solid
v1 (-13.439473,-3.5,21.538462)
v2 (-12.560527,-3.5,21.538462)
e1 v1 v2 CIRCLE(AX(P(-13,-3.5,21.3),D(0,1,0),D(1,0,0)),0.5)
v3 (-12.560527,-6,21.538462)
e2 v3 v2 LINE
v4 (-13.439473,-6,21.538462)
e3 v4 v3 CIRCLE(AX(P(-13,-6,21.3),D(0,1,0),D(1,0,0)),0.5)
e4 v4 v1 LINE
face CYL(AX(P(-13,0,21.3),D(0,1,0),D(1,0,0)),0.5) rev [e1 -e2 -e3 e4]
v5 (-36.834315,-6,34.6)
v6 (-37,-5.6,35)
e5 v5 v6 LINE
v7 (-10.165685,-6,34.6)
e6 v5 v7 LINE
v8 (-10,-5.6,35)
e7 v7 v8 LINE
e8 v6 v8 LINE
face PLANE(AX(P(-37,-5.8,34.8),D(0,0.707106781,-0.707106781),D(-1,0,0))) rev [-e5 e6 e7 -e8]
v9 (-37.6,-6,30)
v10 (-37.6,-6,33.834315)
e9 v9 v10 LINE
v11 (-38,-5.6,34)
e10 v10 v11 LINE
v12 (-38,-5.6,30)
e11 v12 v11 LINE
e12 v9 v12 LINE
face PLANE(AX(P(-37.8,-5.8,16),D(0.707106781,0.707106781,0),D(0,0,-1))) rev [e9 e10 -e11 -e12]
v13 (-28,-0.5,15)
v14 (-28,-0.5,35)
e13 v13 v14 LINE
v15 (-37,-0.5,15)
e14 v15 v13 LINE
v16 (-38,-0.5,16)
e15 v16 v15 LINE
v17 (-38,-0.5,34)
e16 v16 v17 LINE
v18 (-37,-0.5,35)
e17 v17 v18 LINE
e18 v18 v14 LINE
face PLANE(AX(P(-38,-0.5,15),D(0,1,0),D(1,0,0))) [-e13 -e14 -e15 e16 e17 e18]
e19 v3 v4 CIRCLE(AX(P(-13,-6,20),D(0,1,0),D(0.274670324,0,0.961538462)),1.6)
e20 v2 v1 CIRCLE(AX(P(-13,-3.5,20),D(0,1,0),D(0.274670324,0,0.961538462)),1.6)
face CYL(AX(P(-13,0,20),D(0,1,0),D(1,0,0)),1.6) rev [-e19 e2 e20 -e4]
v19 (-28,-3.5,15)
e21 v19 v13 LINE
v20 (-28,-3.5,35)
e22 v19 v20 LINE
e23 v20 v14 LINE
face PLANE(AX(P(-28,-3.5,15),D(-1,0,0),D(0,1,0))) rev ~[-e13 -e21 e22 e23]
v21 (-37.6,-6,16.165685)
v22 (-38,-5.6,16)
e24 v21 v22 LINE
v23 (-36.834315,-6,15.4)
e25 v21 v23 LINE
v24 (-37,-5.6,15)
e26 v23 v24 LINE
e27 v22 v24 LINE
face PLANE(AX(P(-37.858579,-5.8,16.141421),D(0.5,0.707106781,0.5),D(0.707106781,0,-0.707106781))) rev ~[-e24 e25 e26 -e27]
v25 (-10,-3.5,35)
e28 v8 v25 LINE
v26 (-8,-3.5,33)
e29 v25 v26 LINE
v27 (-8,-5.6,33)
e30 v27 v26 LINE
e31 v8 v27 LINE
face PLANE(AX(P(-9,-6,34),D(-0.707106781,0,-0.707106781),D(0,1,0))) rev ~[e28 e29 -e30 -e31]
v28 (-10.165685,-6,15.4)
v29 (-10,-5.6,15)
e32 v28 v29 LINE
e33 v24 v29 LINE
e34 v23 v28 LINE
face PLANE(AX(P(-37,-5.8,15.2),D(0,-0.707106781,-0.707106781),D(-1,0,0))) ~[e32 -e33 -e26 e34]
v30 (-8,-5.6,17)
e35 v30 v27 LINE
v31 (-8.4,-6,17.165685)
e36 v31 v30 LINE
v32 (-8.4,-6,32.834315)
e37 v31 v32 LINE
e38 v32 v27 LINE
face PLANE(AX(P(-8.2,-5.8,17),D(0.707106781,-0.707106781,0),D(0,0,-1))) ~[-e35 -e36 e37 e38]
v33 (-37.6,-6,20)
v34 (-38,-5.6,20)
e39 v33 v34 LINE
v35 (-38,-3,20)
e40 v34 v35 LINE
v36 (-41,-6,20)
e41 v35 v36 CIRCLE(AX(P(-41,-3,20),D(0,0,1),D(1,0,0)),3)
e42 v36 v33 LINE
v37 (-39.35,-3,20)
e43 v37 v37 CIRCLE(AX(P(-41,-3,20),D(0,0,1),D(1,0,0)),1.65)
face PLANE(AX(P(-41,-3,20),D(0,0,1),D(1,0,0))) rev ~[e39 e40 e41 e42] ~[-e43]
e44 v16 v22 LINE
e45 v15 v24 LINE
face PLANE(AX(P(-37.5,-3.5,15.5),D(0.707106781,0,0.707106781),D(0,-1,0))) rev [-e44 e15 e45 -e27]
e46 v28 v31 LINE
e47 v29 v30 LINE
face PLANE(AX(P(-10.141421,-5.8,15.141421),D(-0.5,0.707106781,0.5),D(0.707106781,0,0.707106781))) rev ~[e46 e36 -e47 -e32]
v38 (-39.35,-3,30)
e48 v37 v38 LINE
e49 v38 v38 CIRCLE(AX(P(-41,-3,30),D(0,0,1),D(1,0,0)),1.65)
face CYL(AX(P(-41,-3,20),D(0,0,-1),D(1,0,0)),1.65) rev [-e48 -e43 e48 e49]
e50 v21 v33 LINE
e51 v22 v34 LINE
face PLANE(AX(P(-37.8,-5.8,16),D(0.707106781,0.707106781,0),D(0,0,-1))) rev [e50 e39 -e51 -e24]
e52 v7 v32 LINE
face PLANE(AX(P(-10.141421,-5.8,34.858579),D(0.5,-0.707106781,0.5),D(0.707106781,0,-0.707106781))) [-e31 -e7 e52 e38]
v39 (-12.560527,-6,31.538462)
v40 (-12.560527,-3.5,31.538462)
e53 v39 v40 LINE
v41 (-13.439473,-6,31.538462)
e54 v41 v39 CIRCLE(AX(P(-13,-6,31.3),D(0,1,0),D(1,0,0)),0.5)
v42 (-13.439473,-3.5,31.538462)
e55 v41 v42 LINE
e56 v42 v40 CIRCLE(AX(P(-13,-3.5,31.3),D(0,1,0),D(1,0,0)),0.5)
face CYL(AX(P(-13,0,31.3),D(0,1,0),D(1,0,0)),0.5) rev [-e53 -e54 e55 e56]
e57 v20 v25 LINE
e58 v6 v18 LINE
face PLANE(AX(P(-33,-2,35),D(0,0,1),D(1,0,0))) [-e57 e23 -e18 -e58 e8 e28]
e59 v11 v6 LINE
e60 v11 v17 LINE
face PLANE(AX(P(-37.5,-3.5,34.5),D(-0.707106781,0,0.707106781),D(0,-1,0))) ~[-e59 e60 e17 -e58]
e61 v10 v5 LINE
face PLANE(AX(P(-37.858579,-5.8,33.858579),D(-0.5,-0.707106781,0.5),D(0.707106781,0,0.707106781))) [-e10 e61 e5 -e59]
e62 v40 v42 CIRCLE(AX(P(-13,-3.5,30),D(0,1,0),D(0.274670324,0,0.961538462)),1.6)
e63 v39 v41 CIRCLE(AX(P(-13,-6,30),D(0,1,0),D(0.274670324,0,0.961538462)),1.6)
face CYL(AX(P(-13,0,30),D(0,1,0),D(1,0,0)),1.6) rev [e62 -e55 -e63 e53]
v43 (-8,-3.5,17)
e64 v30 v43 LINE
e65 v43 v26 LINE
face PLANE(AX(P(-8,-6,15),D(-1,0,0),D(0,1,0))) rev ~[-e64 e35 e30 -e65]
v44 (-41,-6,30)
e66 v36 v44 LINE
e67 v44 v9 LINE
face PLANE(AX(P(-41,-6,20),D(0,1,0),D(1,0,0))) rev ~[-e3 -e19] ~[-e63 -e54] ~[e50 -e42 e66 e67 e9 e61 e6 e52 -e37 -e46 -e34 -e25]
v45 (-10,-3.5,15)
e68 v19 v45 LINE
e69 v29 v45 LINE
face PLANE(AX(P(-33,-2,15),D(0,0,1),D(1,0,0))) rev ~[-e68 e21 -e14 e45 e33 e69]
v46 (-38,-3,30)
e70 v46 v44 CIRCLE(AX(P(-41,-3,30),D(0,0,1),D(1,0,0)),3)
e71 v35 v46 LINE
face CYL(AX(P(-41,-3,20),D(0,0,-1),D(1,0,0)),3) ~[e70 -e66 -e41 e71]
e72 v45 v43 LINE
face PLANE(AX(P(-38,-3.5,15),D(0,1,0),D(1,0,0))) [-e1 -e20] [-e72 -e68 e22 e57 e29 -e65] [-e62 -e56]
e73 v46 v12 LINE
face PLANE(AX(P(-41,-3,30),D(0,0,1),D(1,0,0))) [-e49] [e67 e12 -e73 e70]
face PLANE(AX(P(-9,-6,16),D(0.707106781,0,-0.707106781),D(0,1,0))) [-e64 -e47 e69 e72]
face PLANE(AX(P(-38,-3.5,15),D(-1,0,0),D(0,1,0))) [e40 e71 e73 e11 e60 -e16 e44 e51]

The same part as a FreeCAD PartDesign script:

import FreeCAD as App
import Part
import Sketcher

V = App.Vector
Q = App.Units.Quantity


def edges_at(feature, points):
    """Names of the edges that pass closest to the given points."""
    edges = feature.Shape.Edges
    near = lambda p: min(range(len(edges)), key=lambda i: edges[i].distToShape(Part.Vertex(*p))[0])
    return sorted({f"Edge{near(p) + 1}" for p in points})

doc = App.newDocument("Part")
params = doc.addObject("Spreadsheet::Sheet", "Params")
for row, (alias, value) in enumerate([
    ("sketch1_width", "10 mm"),
    ("sketch1_height", "3 mm"),
    ("pad1_length", "20 mm"),
    ("chamfer_size", "1 mm"),
    ("sketch2_diameter", "1 mm"),
    ("pad2_length", "10 mm"),
    ("sketch3_diameter", "1 mm"),
    ("pad3_length", "10 mm"),
    ("sketch4_diameter", "3.2 mm"),
    ("pad4_length", "10 mm"),
    ("sketch5_diameter", "3.2 mm"),
    ("pad5_length", "10 mm"),
    ("sketch6_diameter", "3.3 mm"),
    ("pad6_length", "10 mm"),
    ("sketch7_width", "30 mm"),
    ("sketch7_height", "3 mm"),
    ("pad7_length", "20 mm"),
    ("sketch8_width", "4 mm"),
    ("sketch8_height", "3 mm"),
    ("pad8_length", "10 mm"),
    ("sketch9_diameter", "6 mm"),
    ("pad9_length", "10 mm"),
    ("sketch10_width", "30 mm"),
    ("sketch10_height", "3 mm"),
    ("pad10_length", "20 mm"),
    ("chamfer2_size", "1 mm"),
    ("chamfer3_size", "2 mm"),
    ("chamfer4_size", "0.4 mm"),
], start=1):
    params.set(f"A{row}", alias)
    params.set(f"B{row}", "=" + value)
    params.setAlias(f"B{row}", alias)

body = doc.addObject("PartDesign::Body", "Body")

# Sketch on XY plane
sketch1 = body.newObject("Sketcher::SketchObject", "Sketch")
sketch1.AttachmentSupport = (doc.getObject("XY_Plane"), [""])
sketch1.MapMode = "FlatFace"
sketch1.AttachmentOffset = App.Placement(V(0, 0, 15), App.Rotation())
sketch1.addGeometry(Part.LineSegment(V(-38, -0.5, 0), V(-38, -3.5, 0)), False)
sketch1.addGeometry(Part.LineSegment(V(-38, -3.5, 0), V(-28, -3.5, 0)), False)
sketch1.addGeometry(Part.LineSegment(V(-28, -3.5, 0), V(-28, -0.5, 0)), False)
sketch1.addGeometry(Part.LineSegment(V(-28, -0.5, 0), V(-38, -0.5, 0)), False)
sketch1.addConstraint(Sketcher.Constraint("Coincident", 0, 2, 1, 1))
sketch1.addConstraint(Sketcher.Constraint("Coincident", 1, 2, 2, 1))
sketch1.addConstraint(Sketcher.Constraint("Coincident", 2, 2, 3, 1))
sketch1.addConstraint(Sketcher.Constraint("Coincident", 3, 2, 0, 1))
sketch1.addConstraint(Sketcher.Constraint("Vertical", 0))
sketch1.addConstraint(Sketcher.Constraint("Horizontal", 1))
sketch1.addConstraint(Sketcher.Constraint("Vertical", 2))
sketch1.addConstraint(Sketcher.Constraint("Horizontal", 3))
sketch1.addConstraint(Sketcher.Constraint("DistanceX", 1, 1, 1, 2, Q("10 mm")))
sketch1.addConstraint(Sketcher.Constraint("DistanceY", 0, 2, 0, 1, Q("3 mm")))
sketch1.addConstraint(Sketcher.Constraint("DistanceX", 0, 2, -1, 1, Q("38 mm")))
sketch1.addConstraint(Sketcher.Constraint("DistanceY", 0, 2, -1, 1, Q("3.5 mm")))
sketch1.setExpression("Constraints[8]", "Params.sketch1_width")
sketch1.setExpression("Constraints[9]", "Params.sketch1_height")
pad1 = body.newObject("PartDesign::Pad", "Pad")
pad1.Profile = sketch1
pad1.setExpression("Length", "Params.pad1_length")
doc.recompute()

chamfer = body.newObject("PartDesign::Chamfer", "Chamfer")
chamfer.Base = (pad1, edges_at(pad1, [(-38, -2, 35), (-38, -2, 15)]))
chamfer.setExpression("Size", "Params.chamfer_size")
body2 = doc.addObject("PartDesign::Body", "Body001")

# Sketch on XZ plane
sketch2 = body2.newObject("Sketcher::SketchObject", "Sketch001")
sketch2.AttachmentSupport = (doc.getObject("XZ_Plane001"), [""])
sketch2.MapMode = "FlatFace"
sketch2.addGeometry(Part.Circle(V(25, 15, 0), V(0, 0, 1), 0.5), False)
sketch2.addConstraint(Sketcher.Constraint("Diameter", 0, Q("1 mm")))
sketch2.addConstraint(Sketcher.Constraint("DistanceX", -1, 1, 0, 3, Q("25 mm")))
sketch2.addConstraint(Sketcher.Constraint("DistanceY", -1, 1, 0, 3, Q("15 mm")))
sketch2.setExpression("Constraints[0]", "Params.sketch2_diameter")
pad2 = body2.newObject("PartDesign::Pad", "Pad001")
pad2.Profile = sketch2
pad2.setExpression("Length", "Params.pad2_length")
body3 = doc.addObject("PartDesign::Body", "Body002")
body3.AllowCompound = True

# Sketch on XZ plane
sketch3 = body3.newObject("Sketcher::SketchObject", "Sketch002")
sketch3.AttachmentSupport = (doc.getObject("XZ_Plane002"), [""])
sketch3.MapMode = "FlatFace"
sketch3.addGeometry(Part.Circle(V(25, 5, 0), V(0, 0, 1), 0.5), False)
sketch3.addConstraint(Sketcher.Constraint("Diameter", 0, Q("1 mm")))
sketch3.addConstraint(Sketcher.Constraint("DistanceX", -1, 1, 0, 3, Q("25 mm")))
sketch3.addConstraint(Sketcher.Constraint("DistanceY", -1, 1, 0, 3, Q("5 mm")))
sketch3.setExpression("Constraints[0]", "Params.sketch3_diameter")
pad3 = body3.newObject("PartDesign::Pad", "Pad002")
pad3.Profile = sketch3
pad3.setExpression("Length", "Params.pad3_length")
doc.recompute()

boolean = body3.newObject("PartDesign::Boolean", "Boolean")
boolean.Type = "Fuse"
boolean.addObjects([body2])
body4 = doc.addObject("PartDesign::Body", "Body003")
body4.AllowCompound = True
doc.recompute()

body3.Placement = App.Placement(V(0, 0, 1.3), App.Rotation(V(0, 0, 1), 0))
boolean2 = body4.newObject("PartDesign::Boolean", "Boolean001")
boolean2.Type = "Fuse"
boolean2.addObjects([body3])
body5 = doc.addObject("PartDesign::Body", "Body004")

# Sketch on XZ plane
sketch4 = body5.newObject("Sketcher::SketchObject", "Sketch003")
sketch4.AttachmentSupport = (doc.getObject("XZ_Plane004"), [""])
sketch4.MapMode = "FlatFace"
sketch4.addGeometry(Part.Circle(V(25, 5, 0), V(0, 0, 1), 1.6), False)
sketch4.addConstraint(Sketcher.Constraint("Diameter", 0, Q("3.2 mm")))
sketch4.addConstraint(Sketcher.Constraint("DistanceX", -1, 1, 0, 3, Q("25 mm")))
sketch4.addConstraint(Sketcher.Constraint("DistanceY", -1, 1, 0, 3, Q("5 mm")))
sketch4.setExpression("Constraints[0]", "Params.sketch4_diameter")
pad4 = body5.newObject("PartDesign::Pad", "Pad003")
pad4.Profile = sketch4
pad4.setExpression("Length", "Params.pad4_length")
body6 = doc.addObject("PartDesign::Body", "Body005")
body6.AllowCompound = True

# Sketch on XZ plane
sketch5 = body6.newObject("Sketcher::SketchObject", "Sketch004")
sketch5.AttachmentSupport = (doc.getObject("XZ_Plane005"), [""])
sketch5.MapMode = "FlatFace"
sketch5.addGeometry(Part.Circle(V(25, 15, 0), V(0, 0, 1), 1.6), False)
sketch5.addConstraint(Sketcher.Constraint("Diameter", 0, Q("3.2 mm")))
sketch5.addConstraint(Sketcher.Constraint("DistanceX", -1, 1, 0, 3, Q("25 mm")))
sketch5.addConstraint(Sketcher.Constraint("DistanceY", -1, 1, 0, 3, Q("15 mm")))
sketch5.setExpression("Constraints[0]", "Params.sketch5_diameter")
pad5 = body6.newObject("PartDesign::Pad", "Pad004")
pad5.Profile = sketch5
pad5.setExpression("Length", "Params.pad5_length")
doc.recompute()

boolean3 = body6.newObject("PartDesign::Boolean", "Boolean002")
boolean3.Type = "Fuse"
boolean3.addObjects([body5])
body7 = doc.addObject("PartDesign::Body", "Body006")

# Sketch on XY plane
sketch6 = body7.newObject("Sketcher::SketchObject", "Sketch005")
sketch6.AttachmentSupport = (doc.getObject("XY_Plane006"), [""])
sketch6.MapMode = "FlatFace"
sketch6.AttachmentOffset = App.Placement(V(0, 0, 5), App.Rotation())
sketch6.addGeometry(Part.Circle(V(-3, -3, 0), V(0, 0, 1), 1.6), False)
sketch6.addConstraint(Sketcher.Constraint("Diameter", 0, Q("3.3 mm")))
sketch6.addConstraint(Sketcher.Constraint("DistanceX", 0, 3, -1, 1, Q("3 mm")))
sketch6.addConstraint(Sketcher.Constraint("DistanceY", 0, 3, -1, 1, Q("3 mm")))
sketch6.setExpression("Constraints[0]", "Params.sketch6_diameter")
pad6 = body7.newObject("PartDesign::Pad", "Pad005")
pad6.Profile = sketch6
pad6.setExpression("Length", "Params.pad6_length")
body8 = doc.addObject("PartDesign::Body", "Body007")

# Sketch on XY plane
sketch7 = body8.newObject("Sketcher::SketchObject", "Sketch006")
sketch7.AttachmentSupport = (doc.getObject("XY_Plane007"), [""])
sketch7.MapMode = "FlatFace"
sketch7.addGeometry(Part.LineSegment(V(0, -0.5, 0), V(0, -3.5, 0)), False)
sketch7.addGeometry(Part.LineSegment(V(0, -3.5, 0), V(30, -3.5, 0)), False)
sketch7.addGeometry(Part.LineSegment(V(30, -3.5, 0), V(30, -0.5, 0)), False)
sketch7.addGeometry(Part.LineSegment(V(30, -0.5, 0), V(0, -0.5, 0)), False)
sketch7.addConstraint(Sketcher.Constraint("Coincident", 0, 2, 1, 1))
sketch7.addConstraint(Sketcher.Constraint("Coincident", 1, 2, 2, 1))
sketch7.addConstraint(Sketcher.Constraint("Coincident", 2, 2, 3, 1))
sketch7.addConstraint(Sketcher.Constraint("Coincident", 3, 2, 0, 1))
sketch7.addConstraint(Sketcher.Constraint("Vertical", 0))
sketch7.addConstraint(Sketcher.Constraint("Horizontal", 1))
sketch7.addConstraint(Sketcher.Constraint("Vertical", 2))
sketch7.addConstraint(Sketcher.Constraint("Horizontal", 3))
sketch7.addConstraint(Sketcher.Constraint("PointOnObject", 0, 2, -2))
sketch7.addConstraint(Sketcher.Constraint("DistanceX", 1, 1, 1, 2, Q("30 mm")))
sketch7.addConstraint(Sketcher.Constraint("DistanceY", 0, 2, 0, 1, Q("3 mm")))
sketch7.addConstraint(Sketcher.Constraint("DistanceY", 0, 2, -1, 1, Q("3.5 mm")))
sketch7.setExpression("Constraints[9]", "Params.sketch7_width")
sketch7.setExpression("Constraints[10]", "Params.sketch7_height")
pad7 = body8.newObject("PartDesign::Pad", "Pad006")
pad7.Profile = sketch7
pad7.setExpression("Length", "Params.pad7_length")
body9 = doc.addObject("PartDesign::Body", "Body008")

# Sketch on XY plane
sketch8 = body9.newObject("Sketcher::SketchObject", "Sketch007")
sketch8.AttachmentSupport = (doc.getObject("XY_Plane008"), [""])
sketch8.MapMode = "FlatFace"
sketch8.AttachmentOffset = App.Placement(V(0, 0, 5), App.Rotation())
sketch8.addGeometry(Part.LineSegment(V(-3, -3, 0), V(-3, -6, 0)), False)
sketch8.addGeometry(Part.LineSegment(V(-3, -6, 0), V(1, -6, 0)), False)
sketch8.addGeometry(Part.LineSegment(V(1, -6, 0), V(1, -3, 0)), False)
sketch8.addGeometry(Part.LineSegment(V(1, -3, 0), V(-3, -3, 0)), False)
sketch8.addConstraint(Sketcher.Constraint("Coincident", 0, 2, 1, 1))
sketch8.addConstraint(Sketcher.Constraint("Coincident", 1, 2, 2, 1))
sketch8.addConstraint(Sketcher.Constraint("Coincident", 2, 2, 3, 1))
sketch8.addConstraint(Sketcher.Constraint("Coincident", 3, 2, 0, 1))
sketch8.addConstraint(Sketcher.Constraint("Vertical", 0))
sketch8.addConstraint(Sketcher.Constraint("Horizontal", 1))
sketch8.addConstraint(Sketcher.Constraint("Vertical", 2))
sketch8.addConstraint(Sketcher.Constraint("Horizontal", 3))
sketch8.addConstraint(Sketcher.Constraint("DistanceX", 1, 1, 1, 2, Q("4 mm")))
sketch8.addConstraint(Sketcher.Constraint("DistanceY", 0, 2, 0, 1, Q("3 mm")))
sketch8.addConstraint(Sketcher.Constraint("DistanceX", 0, 2, -1, 1, Q("3 mm")))
sketch8.addConstraint(Sketcher.Constraint("DistanceY", 0, 2, -1, 1, Q("6 mm")))
sketch8.setExpression("Constraints[8]", "Params.sketch8_width")
sketch8.setExpression("Constraints[9]", "Params.sketch8_height")
pad8 = body9.newObject("PartDesign::Pad", "Pad007")
pad8.Profile = sketch8
pad8.setExpression("Length", "Params.pad8_length")
body10 = doc.addObject("PartDesign::Body", "Body009")

# Sketch on XY plane
sketch9 = body10.newObject("Sketcher::SketchObject", "Sketch008")
sketch9.AttachmentSupport = (doc.getObject("XY_Plane009"), [""])
sketch9.MapMode = "FlatFace"
sketch9.AttachmentOffset = App.Placement(V(0, 0, 5), App.Rotation())
sketch9.addGeometry(Part.Circle(V(-3, -3, 0), V(0, 0, 1), 3), False)
sketch9.addConstraint(Sketcher.Constraint("Diameter", 0, Q("6 mm")))
sketch9.addConstraint(Sketcher.Constraint("DistanceX", 0, 3, -1, 1, Q("3 mm")))
sketch9.addConstraint(Sketcher.Constraint("DistanceY", 0, 3, -1, 1, Q("3 mm")))
sketch9.setExpression("Constraints[0]", "Params.sketch9_diameter")
pad9 = body10.newObject("PartDesign::Pad", "Pad008")
pad9.Profile = sketch9
pad9.setExpression("Length", "Params.pad9_length")
body11 = doc.addObject("PartDesign::Body", "Body010")

# Sketch on XY plane
sketch10 = body11.newObject("Sketcher::SketchObject", "Sketch009")
sketch10.AttachmentSupport = (doc.getObject("XY_Plane010"), [""])
sketch10.MapMode = "FlatFace"
sketch10.addGeometry(Part.LineSegment(V(0, -3, 0), V(0, -6, 0)), False)
sketch10.addGeometry(Part.LineSegment(V(0, -6, 0), V(30, -6, 0)), False)
sketch10.addGeometry(Part.LineSegment(V(30, -6, 0), V(30, -3, 0)), False)
sketch10.addGeometry(Part.LineSegment(V(30, -3, 0), V(0, -3, 0)), False)
sketch10.addConstraint(Sketcher.Constraint("Coincident", 0, 2, 1, 1))
sketch10.addConstraint(Sketcher.Constraint("Coincident", 1, 2, 2, 1))
sketch10.addConstraint(Sketcher.Constraint("Coincident", 2, 2, 3, 1))
sketch10.addConstraint(Sketcher.Constraint("Coincident", 3, 2, 0, 1))
sketch10.addConstraint(Sketcher.Constraint("Vertical", 0))
sketch10.addConstraint(Sketcher.Constraint("Horizontal", 1))
sketch10.addConstraint(Sketcher.Constraint("Vertical", 2))
sketch10.addConstraint(Sketcher.Constraint("Horizontal", 3))
sketch10.addConstraint(Sketcher.Constraint("PointOnObject", 0, 2, -2))
sketch10.addConstraint(Sketcher.Constraint("DistanceX", 1, 1, 1, 2, Q("30 mm")))
sketch10.addConstraint(Sketcher.Constraint("DistanceY", 0, 2, 0, 1, Q("3 mm")))
sketch10.addConstraint(Sketcher.Constraint("DistanceY", 0, 2, -1, 1, Q("6 mm")))
sketch10.setExpression("Constraints[9]", "Params.sketch10_width")
sketch10.setExpression("Constraints[10]", "Params.sketch10_height")
pad10 = body11.newObject("PartDesign::Pad", "Pad009")
pad10.Profile = sketch10
pad10.setExpression("Length", "Params.pad10_length")
doc.recompute()

chamfer2 = body11.newObject("PartDesign::Chamfer", "Chamfer001")
chamfer2.Base = (pad10, edges_at(pad10, [(0, -4.5, 20), (0, -4.5, 0)]))
chamfer2.setExpression("Size", "Params.chamfer2_size")
doc.recompute()

chamfer3 = body11.newObject("PartDesign::Chamfer", "Chamfer002")
chamfer3.Base = (chamfer2, edges_at(chamfer2, [(30, -4.5, 0), (30, -4.5, 20)]))
chamfer3.setExpression("Size", "Params.chamfer3_size")
doc.recompute()

chamfer4 = body11.newObject("PartDesign::Chamfer", "Chamfer003")
chamfer4.Base = (chamfer3, edges_at(chamfer3, [
    (14.5, -6, 0),
    (29, -6, 1),
    (0.5, -6, 0.5),
    (30, -6, 10),
    (0, -6, 10),
    (29, -6, 19),
    (0.5, -6, 19.5),
    (14.5, -6, 20),
]))
chamfer4.setExpression("Size", "Params.chamfer4_size")
doc.recompute()

boolean4 = body11.newObject("PartDesign::Boolean", "Boolean003")
boolean4.Type = "Fuse"
boolean4.addObjects([body9])
doc.recompute()

boolean5 = body11.newObject("PartDesign::Boolean", "Boolean004")
boolean5.Type = "Fuse"
boolean5.addObjects([body10])
doc.recompute()

boolean6 = body11.newObject("PartDesign::Boolean", "Boolean005")
boolean6.Type = "Cut"
boolean6.addObjects([body8])
doc.recompute()

boolean7 = body11.newObject("PartDesign::Boolean", "Boolean006")
boolean7.Type = "Cut"
boolean7.addObjects([body7])
doc.recompute()

boolean8 = body11.newObject("PartDesign::Boolean", "Boolean007")
boolean8.Type = "Cut"
boolean8.addObjects([body6])
doc.recompute()

boolean9 = body11.newObject("PartDesign::Boolean", "Boolean008")
boolean9.Type = "Cut"
boolean9.addObjects([body4])
body12 = doc.addObject("PartDesign::Body", "Body011")
doc.recompute()

body11.Placement = App.Placement(V(-38, 0, 15), App.Rotation(V(0, 0, 1), 0))
boolean10 = body12.newObject("PartDesign::Boolean", "Boolean009")
boolean10.Type = "Fuse"
boolean10.addObjects([body11])
doc.recompute()

boolean11 = body12.newObject("PartDesign::Boolean", "Boolean010")
boolean11.Type = "Fuse"
boolean11.addObjects([body])

doc.recompute()
